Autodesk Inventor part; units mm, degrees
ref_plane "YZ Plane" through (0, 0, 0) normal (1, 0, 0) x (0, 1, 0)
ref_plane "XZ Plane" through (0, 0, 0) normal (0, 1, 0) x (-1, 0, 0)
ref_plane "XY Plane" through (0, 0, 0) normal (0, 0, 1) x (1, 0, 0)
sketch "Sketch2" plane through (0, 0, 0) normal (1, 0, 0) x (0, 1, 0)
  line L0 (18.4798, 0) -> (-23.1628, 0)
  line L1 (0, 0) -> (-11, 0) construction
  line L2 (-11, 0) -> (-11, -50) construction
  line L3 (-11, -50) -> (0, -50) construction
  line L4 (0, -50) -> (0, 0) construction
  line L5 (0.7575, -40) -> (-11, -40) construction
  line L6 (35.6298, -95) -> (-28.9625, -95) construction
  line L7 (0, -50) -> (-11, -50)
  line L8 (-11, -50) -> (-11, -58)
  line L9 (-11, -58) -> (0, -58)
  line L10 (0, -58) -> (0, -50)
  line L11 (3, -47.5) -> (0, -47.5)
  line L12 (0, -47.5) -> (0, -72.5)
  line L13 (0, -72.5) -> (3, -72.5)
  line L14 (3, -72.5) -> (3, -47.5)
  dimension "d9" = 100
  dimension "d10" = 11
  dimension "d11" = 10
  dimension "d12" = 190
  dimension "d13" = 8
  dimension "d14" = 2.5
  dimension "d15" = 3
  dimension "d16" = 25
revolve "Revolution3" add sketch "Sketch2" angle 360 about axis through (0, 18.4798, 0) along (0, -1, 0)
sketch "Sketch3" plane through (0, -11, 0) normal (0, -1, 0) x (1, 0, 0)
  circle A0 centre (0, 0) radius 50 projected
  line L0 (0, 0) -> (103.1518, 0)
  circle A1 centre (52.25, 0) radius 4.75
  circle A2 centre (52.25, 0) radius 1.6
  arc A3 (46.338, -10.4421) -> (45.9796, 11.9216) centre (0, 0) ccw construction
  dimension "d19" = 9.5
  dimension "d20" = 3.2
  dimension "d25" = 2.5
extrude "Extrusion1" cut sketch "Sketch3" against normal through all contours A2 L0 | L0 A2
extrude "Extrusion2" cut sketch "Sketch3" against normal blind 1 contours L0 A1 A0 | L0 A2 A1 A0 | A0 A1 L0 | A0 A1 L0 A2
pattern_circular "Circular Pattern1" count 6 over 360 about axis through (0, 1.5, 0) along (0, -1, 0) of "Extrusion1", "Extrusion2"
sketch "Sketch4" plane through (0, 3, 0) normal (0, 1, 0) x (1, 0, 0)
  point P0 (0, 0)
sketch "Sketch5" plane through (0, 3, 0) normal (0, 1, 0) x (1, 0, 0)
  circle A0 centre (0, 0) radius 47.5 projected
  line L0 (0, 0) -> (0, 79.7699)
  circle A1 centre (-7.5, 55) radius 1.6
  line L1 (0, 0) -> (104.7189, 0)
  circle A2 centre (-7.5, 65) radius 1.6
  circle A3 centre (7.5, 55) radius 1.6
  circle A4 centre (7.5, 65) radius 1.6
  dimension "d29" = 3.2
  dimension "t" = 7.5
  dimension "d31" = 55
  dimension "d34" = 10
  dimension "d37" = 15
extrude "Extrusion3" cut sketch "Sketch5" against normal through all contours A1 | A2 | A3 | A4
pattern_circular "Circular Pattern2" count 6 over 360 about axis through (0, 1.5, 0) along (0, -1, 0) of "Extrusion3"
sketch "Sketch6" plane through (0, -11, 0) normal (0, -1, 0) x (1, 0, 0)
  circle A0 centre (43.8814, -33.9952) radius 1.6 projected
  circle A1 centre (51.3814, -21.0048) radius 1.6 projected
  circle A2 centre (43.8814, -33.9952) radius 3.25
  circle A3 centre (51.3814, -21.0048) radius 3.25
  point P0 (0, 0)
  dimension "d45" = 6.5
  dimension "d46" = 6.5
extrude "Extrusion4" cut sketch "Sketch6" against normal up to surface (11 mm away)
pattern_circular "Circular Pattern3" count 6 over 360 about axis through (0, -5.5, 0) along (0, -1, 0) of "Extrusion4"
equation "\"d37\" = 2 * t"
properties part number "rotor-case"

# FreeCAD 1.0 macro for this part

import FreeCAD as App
import Part
import Sketcher

doc = App.newDocument("Part")
body = doc.addObject("PartDesign::Body", "Body")

sketch1 = body.newObject("Sketcher::SketchObject", "Sketch")
sketch1.AttachmentSupport = (doc.getObject("YZ_Plane"), [""])
sketch1.MapMode = "FlatFace"
sketch1.addGeometry([
    Part.LineSegment(App.Vector(-11, -58, 0), App.Vector(0, -58, 0)),
    Part.LineSegment(App.Vector(0, -58, 0), App.Vector(0, -72.5, 0)),
    Part.LineSegment(App.Vector(0, -72.5, 0), App.Vector(3, -72.5, 0)),
    Part.LineSegment(App.Vector(3, -72.5, 0), App.Vector(3, -47.5, 0)),
    Part.LineSegment(App.Vector(3, -47.5, 0), App.Vector(0, -47.5, 0)),
    Part.LineSegment(App.Vector(0, -47.5, 0), App.Vector(0, -50, 0)),
    Part.LineSegment(App.Vector(0, -50, 0), App.Vector(-11, -50, 0)),
    Part.LineSegment(App.Vector(-11, -50, 0), App.Vector(-11, -58, 0)),
], False)
sketch1.addConstraint([
    Sketcher.Constraint("Coincident", 0, 2, 1, 1),
    Sketcher.Constraint("Coincident", 1, 2, 2, 1),
    Sketcher.Constraint("Coincident", 2, 2, 3, 1),
    Sketcher.Constraint("Coincident", 3, 2, 4, 1),
    Sketcher.Constraint("Coincident", 4, 2, 5, 1),
    Sketcher.Constraint("Coincident", 5, 2, 6, 1),
    Sketcher.Constraint("Coincident", 6, 2, 7, 1),
    Sketcher.Constraint("Coincident", 7, 2, 0, 1),
    Sketcher.Constraint("Horizontal", 0),
    Sketcher.Constraint("Vertical", 1),
    Sketcher.Constraint("Horizontal", 2),
    Sketcher.Constraint("Vertical", 3),
    Sketcher.Constraint("Horizontal", 4),
    Sketcher.Constraint("Vertical", 5),
    Sketcher.Constraint("Horizontal", 6),
    Sketcher.Constraint("Vertical", 7),
    Sketcher.Constraint("PointOnObject", 0, 2, -2),
    Sketcher.Constraint("PointOnObject", 4, 2, -2),
    Sketcher.Constraint("DistanceX", 0, 1, 0, 2, 11.0),
    Sketcher.Constraint("DistanceX", 2, 1, 2, 2, 3.0),
    Sketcher.Constraint("DistanceY", 3, 1, 3, 2, 25.0),
    Sketcher.Constraint("DistanceY", 7, 2, 7, 1, 8.0),
    Sketcher.Constraint("DistanceY", 5, 2, 5, 1, 2.5),
    Sketcher.Constraint("DistanceY", 0, 2, -1, 1, 58.0),
])
revolution = body.newObject("PartDesign::Revolution", "Revolution")
revolution.Profile = sketch1
revolution.ReferenceAxis = (sketch1, ["H_Axis"])
revolution.Angle = 360

sketch2 = body.newObject("Sketcher::SketchObject", "Sketch001")
sketch2.AttachmentSupport = (doc.getObject("XZ_Plane"), [""])
sketch2.MapMode = "FlatFace"
sketch2.AttachmentOffset = App.Placement(App.Vector(0, 0, 11), App.Rotation())
sketch2.addGeometry(Part.Circle(App.Vector(52.25, 0, 0), App.Vector(0, 0, 1), 1.6), False)
sketch2.addConstraint([
    Sketcher.Constraint("PointOnObject", 0, 3, -1),
    Sketcher.Constraint("Diameter", 0, 3.2),
    Sketcher.Constraint("DistanceX", -1, 1, 0, 3, 52.25),
])
pocket1 = body.newObject("PartDesign::Pocket", "Pocket")
pocket1.Profile = sketch2
pocket1.Type = "ThroughAll"

sketch3 = body.newObject("Sketcher::SketchObject", "Sketch002")
sketch3.AttachmentSupport = (doc.getObject("XZ_Plane"), [""])
sketch3.MapMode = "FlatFace"
sketch3.AttachmentOffset = App.Placement(App.Vector(0, 0, 11), App.Rotation())
sketch3.addGeometry([
    Part.Circle(App.Vector(52.25, 0, 0), App.Vector(0, 0, 1), 4.75),
    Part.Circle(App.Vector(52.25, 0, 0), App.Vector(0, 0, 1), 1.6),
], False)
sketch3.addConstraint([
    Sketcher.Constraint("Coincident", 1, 3, 0, 3),
    Sketcher.Constraint("PointOnObject", 0, 3, -1),
    Sketcher.Constraint("Diameter", 0, 9.5),
    Sketcher.Constraint("Diameter", 1, 3.2),
    Sketcher.Constraint("DistanceX", -1, 1, 0, 3, 52.25),
])
pocket2 = body.newObject("PartDesign::Pocket", "Pocket001")
pocket2.Profile = sketch3
pocket2.Length = 1
doc.recompute()

polarpattern = body.newObject("PartDesign::PolarPattern", "PolarPattern")
polarpattern.Originals = [pocket1, pocket2]
polarpattern.Axis = (doc.getObject("Y_Axis"), [""])
polarpattern.Angle = 360
polarpattern.Occurrences = 6
body.Tip = polarpattern

sketch4 = body.newObject("Sketcher::SketchObject", "Sketch003")
sketch4.AttachmentSupport = (doc.getObject("XZ_Plane"), [""])
sketch4.MapMode = "FlatFace"
sketch4.AttachmentOffset = App.Placement(App.Vector(0, 0, -3), App.Rotation())
sketch4.addGeometry([
    Part.Circle(App.Vector(-7.5, -55, 0), App.Vector(0, 0, 1), 1.6),
    Part.Circle(App.Vector(-7.5, -65, 0), App.Vector(0, 0, 1), 1.6),
    Part.Circle(App.Vector(7.5, -55, 0), App.Vector(0, 0, 1), 1.6),
    Part.Circle(App.Vector(7.5, -65, 0), App.Vector(0, 0, 1), 1.6),
], False)
sketch4.addConstraint([
    Sketcher.Constraint("Equal", 0, 1),
    Sketcher.Constraint("Equal", 1, 2),
    Sketcher.Constraint("Equal", 2, 3),
    Sketcher.Constraint("Symmetric", 0, 3, 2, 3, -2),
    Sketcher.Constraint("Symmetric", 1, 3, 3, 3, -2),
    Sketcher.Constraint("Vertical", 0, 3, 1, 3),
    Sketcher.Constraint("Diameter", 0, 3.2),
    Sketcher.Constraint("DistanceY", 0, 3, -1, 1, 55.0),
    Sketcher.Constraint("DistanceY", 1, 3, 0, 3, 10.0),
    Sketcher.Constraint("DistanceX", 0, 3, 2, 3, 15.0),
])
pocket3 = body.newObject("PartDesign::Pocket", "Pocket002")
pocket3.Profile = sketch4
pocket3.Type = "ThroughAll"
pocket3.Reversed = True
doc.recompute()

polarpattern2 = body.newObject("PartDesign::PolarPattern", "PolarPattern001")
polarpattern2.Originals = [pocket3]
polarpattern2.Axis = (doc.getObject("Y_Axis"), [""])
polarpattern2.Angle = 360
polarpattern2.Occurrences = 6
body.Tip = polarpattern2

sketch5 = body.newObject("Sketcher::SketchObject", "Sketch004")
sketch5.AttachmentSupport = (doc.getObject("XZ_Plane"), [""])
sketch5.MapMode = "FlatFace"
sketch5.AttachmentOffset = App.Placement(App.Vector(0, 0, 11), App.Rotation())
sketch5.addGeometry([
    Part.Circle(App.Vector(43.8814, -33.9952, 0), App.Vector(0, 0, 1), 3.25),
    Part.Circle(App.Vector(43.8814, -33.9952, 0), App.Vector(0, 0, 1), 1.6),
    Part.Circle(App.Vector(51.3814, -21.0048, 0), App.Vector(0, 0, 1), 3.25),
    Part.Circle(App.Vector(51.3814, -21.0048, 0), App.Vector(0, 0, 1), 1.6),
], False)
sketch5.addConstraint([
    Sketcher.Constraint("Coincident", 1, 3, 0, 3),
    Sketcher.Constraint("Coincident", 3, 3, 2, 3),
    Sketcher.Constraint("Equal", 0, 2),
    Sketcher.Constraint("Equal", 1, 3),
    Sketcher.Constraint("Diameter", 0, 6.5),
    Sketcher.Constraint("Diameter", 1, 3.2),
    Sketcher.Constraint("DistanceX", 0, 3, 2, 3, 7.5),
    Sketcher.Constraint("DistanceX", -1, 1, 0, 3, 43.8814),
    Sketcher.Constraint("DistanceY", 0, 3, -1, 1, 33.9952),
    Sketcher.Constraint("DistanceY", 2, 3, -1, 1, 21.0048),
])
pocket4 = body.newObject("PartDesign::Pocket", "Pocket003")
pocket4.Profile = sketch5
pocket4.Length = 11
doc.recompute()

polarpattern3 = body.newObject("PartDesign::PolarPattern", "PolarPattern002")
polarpattern3.Originals = [pocket4]
polarpattern3.Axis = (doc.getObject("Y_Axis"), [""])
polarpattern3.Angle = 360
polarpattern3.Occurrences = 6
body.Tip = polarpattern3

doc.recompute()
